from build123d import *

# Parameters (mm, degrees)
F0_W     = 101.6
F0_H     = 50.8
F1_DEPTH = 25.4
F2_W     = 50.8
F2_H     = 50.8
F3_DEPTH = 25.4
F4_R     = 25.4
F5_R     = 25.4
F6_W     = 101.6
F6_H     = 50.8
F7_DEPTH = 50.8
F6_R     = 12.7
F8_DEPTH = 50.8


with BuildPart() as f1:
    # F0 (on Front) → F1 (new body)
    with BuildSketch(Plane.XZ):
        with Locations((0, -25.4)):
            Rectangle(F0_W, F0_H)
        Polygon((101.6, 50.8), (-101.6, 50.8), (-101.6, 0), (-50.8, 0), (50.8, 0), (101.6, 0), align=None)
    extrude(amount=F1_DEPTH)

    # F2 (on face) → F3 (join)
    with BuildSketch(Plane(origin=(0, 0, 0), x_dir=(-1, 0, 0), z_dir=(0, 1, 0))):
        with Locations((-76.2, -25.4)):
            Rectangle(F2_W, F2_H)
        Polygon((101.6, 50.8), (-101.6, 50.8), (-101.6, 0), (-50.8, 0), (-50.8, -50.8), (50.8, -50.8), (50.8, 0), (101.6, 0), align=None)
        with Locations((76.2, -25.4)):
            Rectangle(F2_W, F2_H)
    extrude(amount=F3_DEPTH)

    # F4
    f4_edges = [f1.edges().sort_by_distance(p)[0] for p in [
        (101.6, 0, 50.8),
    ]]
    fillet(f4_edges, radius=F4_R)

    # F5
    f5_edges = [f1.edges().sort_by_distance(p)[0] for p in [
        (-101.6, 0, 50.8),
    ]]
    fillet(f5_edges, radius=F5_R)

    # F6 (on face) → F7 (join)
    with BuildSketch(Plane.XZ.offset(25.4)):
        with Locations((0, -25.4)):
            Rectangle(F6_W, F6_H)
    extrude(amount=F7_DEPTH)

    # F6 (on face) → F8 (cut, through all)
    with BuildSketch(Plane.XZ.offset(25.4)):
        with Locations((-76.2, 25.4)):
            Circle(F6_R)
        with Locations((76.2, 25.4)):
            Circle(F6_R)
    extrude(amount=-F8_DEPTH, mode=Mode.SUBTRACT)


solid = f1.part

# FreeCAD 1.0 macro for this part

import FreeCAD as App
import Part
import Sketcher
from FreeCAD import Vector
Q = App.Units.Quantity


def edges_at(feature, points):
    """Names of the edges that pass closest to the given points."""
    edges = feature.Shape.Edges
    near = lambda p: min(range(len(edges)), key=lambda i: edges[i].distToShape(Part.Vertex(*p))[0])
    return sorted({f"Edge{near(p) + 1}" for p in points})

doc = App.newDocument("Part")
body = doc.addObject("PartDesign::Body", "Body")

sketch1 = doc.addObject("Sketcher::SketchObject", "Sketch")
body.addObject(sketch1)
sketch1.AttachmentSupport = (doc.XZ_Plane, [""])
sketch1.MapMode = "FlatFace"
sketch1.addGeometry(Part.LineSegment(Vector(-51, 0, 0), Vector(-51, -51, 0)), False)
sketch1.addGeometry(Part.LineSegment(Vector(-51, -51, 0), Vector(51, -51, 0)), False)
sketch1.addGeometry(Part.LineSegment(Vector(51, -51, 0), Vector(51, 0, 0)), False)
sketch1.addGeometry(Part.LineSegment(Vector(51, 0, 0), Vector(102, 0, 0)), False)
sketch1.addGeometry(Part.LineSegment(Vector(102, 0, 0), Vector(102, 51, 0)), False)
sketch1.addGeometry(Part.LineSegment(Vector(102, 51, 0), Vector(-102, 51, 0)), False)
sketch1.addGeometry(Part.LineSegment(Vector(-102, 51, 0), Vector(-102, 0, 0)), False)
sketch1.addGeometry(Part.LineSegment(Vector(-102, 0, 0), Vector(-51, 0, 0)), False)
sketch1.addConstraint(Sketcher.Constraint("Coincident", 0, 2, 1, 1))
sketch1.addConstraint(Sketcher.Constraint("Coincident", 1, 2, 2, 1))
sketch1.addConstraint(Sketcher.Constraint("Coincident", 2, 2, 3, 1))
sketch1.addConstraint(Sketcher.Constraint("Coincident", 3, 2, 4, 1))
sketch1.addConstraint(Sketcher.Constraint("Coincident", 4, 2, 5, 1))
sketch1.addConstraint(Sketcher.Constraint("Coincident", 5, 2, 6, 1))
sketch1.addConstraint(Sketcher.Constraint("Coincident", 6, 2, 7, 1))
sketch1.addConstraint(Sketcher.Constraint("Coincident", 7, 2, 0, 1))
sketch1.addConstraint(Sketcher.Constraint("Vertical", 0))
sketch1.addConstraint(Sketcher.Constraint("Horizontal", 1))
sketch1.addConstraint(Sketcher.Constraint("Vertical", 2))
sketch1.addConstraint(Sketcher.Constraint("Horizontal", 3))
sketch1.addConstraint(Sketcher.Constraint("Vertical", 4))
sketch1.addConstraint(Sketcher.Constraint("Horizontal", 5))
sketch1.addConstraint(Sketcher.Constraint("Vertical", 6))
sketch1.addConstraint(Sketcher.Constraint("Horizontal", 7))
sketch1.addConstraint(Sketcher.Constraint("Symmetric", 3, 2, 6, 2, -1, 1))
sketch1.addConstraint(Sketcher.Constraint("Symmetric", 2, 2, 7, 2, -2))
sketch1.addConstraint(Sketcher.Constraint("Equal", 7, 0))
sketch1.addConstraint(Sketcher.Constraint("Equal", 2, 4))
sketch1.addConstraint(Sketcher.Constraint("DistanceX", 1, 1, 1, 2, Q("4 in")))
sketch1.addConstraint(Sketcher.Constraint("DistanceX", 3, 1, 3, 2, Q("2 in")))
pad1 = doc.addObject("PartDesign::Pad", "Pad")
body.addObject(pad1)
pad1.Profile = sketch1
pad1.Length = Q("1 in")

sketch2 = doc.addObject("Sketcher::SketchObject", "Sketch001")
body.addObject(sketch2)
sketch2.AttachmentSupport = (doc.XZ_Plane, [""])
sketch2.MapMode = "FlatFace"
sketch2.addGeometry(Part.LineSegment(Vector(102, -51, 0), Vector(-102, -51, 0)), False)
sketch2.addGeometry(Part.LineSegment(Vector(-102, -51, 0), Vector(-102, 51, 0)), False)
sketch2.addGeometry(Part.LineSegment(Vector(-102, 51, 0), Vector(102, 51, 0)), False)
sketch2.addGeometry(Part.LineSegment(Vector(102, 51, 0), Vector(102, -51, 0)), False)
sketch2.addConstraint(Sketcher.Constraint("Coincident", 0, 2, 1, 1))
sketch2.addConstraint(Sketcher.Constraint("Coincident", 1, 2, 2, 1))
sketch2.addConstraint(Sketcher.Constraint("Coincident", 2, 2, 3, 1))
sketch2.addConstraint(Sketcher.Constraint("Coincident", 3, 2, 0, 1))
sketch2.addConstraint(Sketcher.Constraint("Horizontal", 0))
sketch2.addConstraint(Sketcher.Constraint("Vertical", 1))
sketch2.addConstraint(Sketcher.Constraint("Horizontal", 2))
sketch2.addConstraint(Sketcher.Constraint("Vertical", 3))
sketch2.addConstraint(Sketcher.Constraint("Symmetric", 0, 2, 2, 2, -1, 1))
sketch2.addConstraint(Sketcher.Constraint("DistanceX", 0, 2, 0, 1, Q("8 in")))
sketch2.addConstraint(Sketcher.Constraint("DistanceY", 1, 1, 1, 2, Q("4 in")))
pad2 = doc.addObject("PartDesign::Pad", "Pad001")
body.addObject(pad2)
pad2.Profile = sketch2
pad2.Length = Q("1 in")
pad2.Reversed = True
doc.recompute()

fillet = doc.addObject("PartDesign::Fillet", "Fillet")
body.addObject(fillet)
fillet.Base = (pad2, edges_at(pad2, [(101.6, 0, 50.8)]))
fillet.Radius = Q("1 in")
doc.recompute()

fillet2 = doc.addObject("PartDesign::Fillet", "Fillet001")
body.addObject(fillet2)
fillet2.Base = (fillet, edges_at(fillet, [(-101.6, 0, 50.8)]))
fillet2.Radius = Q("1 in")

sketch3 = doc.addObject("Sketcher::SketchObject", "Sketch002")
body.addObject(sketch3)
sketch3.AttachmentSupport = (doc.XZ_Plane, [""])
sketch3.MapMode = "FlatFace"
sketch3.AttachmentOffset = App.Placement(Vector(0, 0, 1 * 25.4), App.Rotation())
sketch3.addGeometry(Part.LineSegment(Vector(-51, 0, 0), Vector(-51, -51, 0)), False)
sketch3.addGeometry(Part.LineSegment(Vector(-51, -51, 0), Vector(51, -51, 0)), False)
sketch3.addGeometry(Part.LineSegment(Vector(51, -51, 0), Vector(51, 0, 0)), False)
sketch3.addGeometry(Part.LineSegment(Vector(51, 0, 0), Vector(-51, 0, 0)), False)
sketch3.addConstraint(Sketcher.Constraint("Coincident", 0, 2, 1, 1))
sketch3.addConstraint(Sketcher.Constraint("Coincident", 1, 2, 2, 1))
sketch3.addConstraint(Sketcher.Constraint("Coincident", 2, 2, 3, 1))
sketch3.addConstraint(Sketcher.Constraint("Coincident", 3, 2, 0, 1))
sketch3.addConstraint(Sketcher.Constraint("Vertical", 0))
sketch3.addConstraint(Sketcher.Constraint("Horizontal", 1))
sketch3.addConstraint(Sketcher.Constraint("Vertical", 2))
sketch3.addConstraint(Sketcher.Constraint("Horizontal", 3))
sketch3.addConstraint(Sketcher.Constraint("Symmetric", 2, 2, 3, 2, -1, 1))
sketch3.addConstraint(Sketcher.Constraint("DistanceX", 1, 1, 1, 2, Q("4 in")))
sketch3.addConstraint(Sketcher.Constraint("DistanceY", 0, 2, 0, 1, Q("2 in")))
pad3 = doc.addObject("PartDesign::Pad", "Pad002")
body.addObject(pad3)
pad3.Profile = sketch3
pad3.Length = Q("2 in")

sketch4 = doc.addObject("Sketcher::SketchObject", "Sketch003")
body.addObject(sketch4)
sketch4.AttachmentSupport = (doc.XZ_Plane, [""])
sketch4.MapMode = "FlatFace"
sketch4.AttachmentOffset = App.Placement(Vector(0, 0, 1 * 25.4), App.Rotation())
sketch4.addGeometry(Part.Circle(Vector(-76, 25, 0), Vector(0, 0, 1), 13), False)
sketch4.addGeometry(Part.Circle(Vector(76, 25, 0), Vector(0, 0, 1), 13), False)
sketch4.addConstraint(Sketcher.Constraint("Equal", 0, 1))
sketch4.addConstraint(Sketcher.Constraint("Symmetric", 0, 3, 1, 3, -2))
sketch4.addConstraint(Sketcher.Constraint("Diameter", 0, Q("1 in")))
sketch4.addConstraint(Sketcher.Constraint("DistanceX", 0, 3, -1, 1, Q("3 in")))
sketch4.addConstraint(Sketcher.Constraint("DistanceY", -1, 1, 0, 3, Q("1 in")))
pocket1 = doc.addObject("PartDesign::Pocket", "Pocket")
body.addObject(pocket1)
pocket1.Profile = sketch4
pocket1.Type = "ThroughAll"

doc.recompute()
